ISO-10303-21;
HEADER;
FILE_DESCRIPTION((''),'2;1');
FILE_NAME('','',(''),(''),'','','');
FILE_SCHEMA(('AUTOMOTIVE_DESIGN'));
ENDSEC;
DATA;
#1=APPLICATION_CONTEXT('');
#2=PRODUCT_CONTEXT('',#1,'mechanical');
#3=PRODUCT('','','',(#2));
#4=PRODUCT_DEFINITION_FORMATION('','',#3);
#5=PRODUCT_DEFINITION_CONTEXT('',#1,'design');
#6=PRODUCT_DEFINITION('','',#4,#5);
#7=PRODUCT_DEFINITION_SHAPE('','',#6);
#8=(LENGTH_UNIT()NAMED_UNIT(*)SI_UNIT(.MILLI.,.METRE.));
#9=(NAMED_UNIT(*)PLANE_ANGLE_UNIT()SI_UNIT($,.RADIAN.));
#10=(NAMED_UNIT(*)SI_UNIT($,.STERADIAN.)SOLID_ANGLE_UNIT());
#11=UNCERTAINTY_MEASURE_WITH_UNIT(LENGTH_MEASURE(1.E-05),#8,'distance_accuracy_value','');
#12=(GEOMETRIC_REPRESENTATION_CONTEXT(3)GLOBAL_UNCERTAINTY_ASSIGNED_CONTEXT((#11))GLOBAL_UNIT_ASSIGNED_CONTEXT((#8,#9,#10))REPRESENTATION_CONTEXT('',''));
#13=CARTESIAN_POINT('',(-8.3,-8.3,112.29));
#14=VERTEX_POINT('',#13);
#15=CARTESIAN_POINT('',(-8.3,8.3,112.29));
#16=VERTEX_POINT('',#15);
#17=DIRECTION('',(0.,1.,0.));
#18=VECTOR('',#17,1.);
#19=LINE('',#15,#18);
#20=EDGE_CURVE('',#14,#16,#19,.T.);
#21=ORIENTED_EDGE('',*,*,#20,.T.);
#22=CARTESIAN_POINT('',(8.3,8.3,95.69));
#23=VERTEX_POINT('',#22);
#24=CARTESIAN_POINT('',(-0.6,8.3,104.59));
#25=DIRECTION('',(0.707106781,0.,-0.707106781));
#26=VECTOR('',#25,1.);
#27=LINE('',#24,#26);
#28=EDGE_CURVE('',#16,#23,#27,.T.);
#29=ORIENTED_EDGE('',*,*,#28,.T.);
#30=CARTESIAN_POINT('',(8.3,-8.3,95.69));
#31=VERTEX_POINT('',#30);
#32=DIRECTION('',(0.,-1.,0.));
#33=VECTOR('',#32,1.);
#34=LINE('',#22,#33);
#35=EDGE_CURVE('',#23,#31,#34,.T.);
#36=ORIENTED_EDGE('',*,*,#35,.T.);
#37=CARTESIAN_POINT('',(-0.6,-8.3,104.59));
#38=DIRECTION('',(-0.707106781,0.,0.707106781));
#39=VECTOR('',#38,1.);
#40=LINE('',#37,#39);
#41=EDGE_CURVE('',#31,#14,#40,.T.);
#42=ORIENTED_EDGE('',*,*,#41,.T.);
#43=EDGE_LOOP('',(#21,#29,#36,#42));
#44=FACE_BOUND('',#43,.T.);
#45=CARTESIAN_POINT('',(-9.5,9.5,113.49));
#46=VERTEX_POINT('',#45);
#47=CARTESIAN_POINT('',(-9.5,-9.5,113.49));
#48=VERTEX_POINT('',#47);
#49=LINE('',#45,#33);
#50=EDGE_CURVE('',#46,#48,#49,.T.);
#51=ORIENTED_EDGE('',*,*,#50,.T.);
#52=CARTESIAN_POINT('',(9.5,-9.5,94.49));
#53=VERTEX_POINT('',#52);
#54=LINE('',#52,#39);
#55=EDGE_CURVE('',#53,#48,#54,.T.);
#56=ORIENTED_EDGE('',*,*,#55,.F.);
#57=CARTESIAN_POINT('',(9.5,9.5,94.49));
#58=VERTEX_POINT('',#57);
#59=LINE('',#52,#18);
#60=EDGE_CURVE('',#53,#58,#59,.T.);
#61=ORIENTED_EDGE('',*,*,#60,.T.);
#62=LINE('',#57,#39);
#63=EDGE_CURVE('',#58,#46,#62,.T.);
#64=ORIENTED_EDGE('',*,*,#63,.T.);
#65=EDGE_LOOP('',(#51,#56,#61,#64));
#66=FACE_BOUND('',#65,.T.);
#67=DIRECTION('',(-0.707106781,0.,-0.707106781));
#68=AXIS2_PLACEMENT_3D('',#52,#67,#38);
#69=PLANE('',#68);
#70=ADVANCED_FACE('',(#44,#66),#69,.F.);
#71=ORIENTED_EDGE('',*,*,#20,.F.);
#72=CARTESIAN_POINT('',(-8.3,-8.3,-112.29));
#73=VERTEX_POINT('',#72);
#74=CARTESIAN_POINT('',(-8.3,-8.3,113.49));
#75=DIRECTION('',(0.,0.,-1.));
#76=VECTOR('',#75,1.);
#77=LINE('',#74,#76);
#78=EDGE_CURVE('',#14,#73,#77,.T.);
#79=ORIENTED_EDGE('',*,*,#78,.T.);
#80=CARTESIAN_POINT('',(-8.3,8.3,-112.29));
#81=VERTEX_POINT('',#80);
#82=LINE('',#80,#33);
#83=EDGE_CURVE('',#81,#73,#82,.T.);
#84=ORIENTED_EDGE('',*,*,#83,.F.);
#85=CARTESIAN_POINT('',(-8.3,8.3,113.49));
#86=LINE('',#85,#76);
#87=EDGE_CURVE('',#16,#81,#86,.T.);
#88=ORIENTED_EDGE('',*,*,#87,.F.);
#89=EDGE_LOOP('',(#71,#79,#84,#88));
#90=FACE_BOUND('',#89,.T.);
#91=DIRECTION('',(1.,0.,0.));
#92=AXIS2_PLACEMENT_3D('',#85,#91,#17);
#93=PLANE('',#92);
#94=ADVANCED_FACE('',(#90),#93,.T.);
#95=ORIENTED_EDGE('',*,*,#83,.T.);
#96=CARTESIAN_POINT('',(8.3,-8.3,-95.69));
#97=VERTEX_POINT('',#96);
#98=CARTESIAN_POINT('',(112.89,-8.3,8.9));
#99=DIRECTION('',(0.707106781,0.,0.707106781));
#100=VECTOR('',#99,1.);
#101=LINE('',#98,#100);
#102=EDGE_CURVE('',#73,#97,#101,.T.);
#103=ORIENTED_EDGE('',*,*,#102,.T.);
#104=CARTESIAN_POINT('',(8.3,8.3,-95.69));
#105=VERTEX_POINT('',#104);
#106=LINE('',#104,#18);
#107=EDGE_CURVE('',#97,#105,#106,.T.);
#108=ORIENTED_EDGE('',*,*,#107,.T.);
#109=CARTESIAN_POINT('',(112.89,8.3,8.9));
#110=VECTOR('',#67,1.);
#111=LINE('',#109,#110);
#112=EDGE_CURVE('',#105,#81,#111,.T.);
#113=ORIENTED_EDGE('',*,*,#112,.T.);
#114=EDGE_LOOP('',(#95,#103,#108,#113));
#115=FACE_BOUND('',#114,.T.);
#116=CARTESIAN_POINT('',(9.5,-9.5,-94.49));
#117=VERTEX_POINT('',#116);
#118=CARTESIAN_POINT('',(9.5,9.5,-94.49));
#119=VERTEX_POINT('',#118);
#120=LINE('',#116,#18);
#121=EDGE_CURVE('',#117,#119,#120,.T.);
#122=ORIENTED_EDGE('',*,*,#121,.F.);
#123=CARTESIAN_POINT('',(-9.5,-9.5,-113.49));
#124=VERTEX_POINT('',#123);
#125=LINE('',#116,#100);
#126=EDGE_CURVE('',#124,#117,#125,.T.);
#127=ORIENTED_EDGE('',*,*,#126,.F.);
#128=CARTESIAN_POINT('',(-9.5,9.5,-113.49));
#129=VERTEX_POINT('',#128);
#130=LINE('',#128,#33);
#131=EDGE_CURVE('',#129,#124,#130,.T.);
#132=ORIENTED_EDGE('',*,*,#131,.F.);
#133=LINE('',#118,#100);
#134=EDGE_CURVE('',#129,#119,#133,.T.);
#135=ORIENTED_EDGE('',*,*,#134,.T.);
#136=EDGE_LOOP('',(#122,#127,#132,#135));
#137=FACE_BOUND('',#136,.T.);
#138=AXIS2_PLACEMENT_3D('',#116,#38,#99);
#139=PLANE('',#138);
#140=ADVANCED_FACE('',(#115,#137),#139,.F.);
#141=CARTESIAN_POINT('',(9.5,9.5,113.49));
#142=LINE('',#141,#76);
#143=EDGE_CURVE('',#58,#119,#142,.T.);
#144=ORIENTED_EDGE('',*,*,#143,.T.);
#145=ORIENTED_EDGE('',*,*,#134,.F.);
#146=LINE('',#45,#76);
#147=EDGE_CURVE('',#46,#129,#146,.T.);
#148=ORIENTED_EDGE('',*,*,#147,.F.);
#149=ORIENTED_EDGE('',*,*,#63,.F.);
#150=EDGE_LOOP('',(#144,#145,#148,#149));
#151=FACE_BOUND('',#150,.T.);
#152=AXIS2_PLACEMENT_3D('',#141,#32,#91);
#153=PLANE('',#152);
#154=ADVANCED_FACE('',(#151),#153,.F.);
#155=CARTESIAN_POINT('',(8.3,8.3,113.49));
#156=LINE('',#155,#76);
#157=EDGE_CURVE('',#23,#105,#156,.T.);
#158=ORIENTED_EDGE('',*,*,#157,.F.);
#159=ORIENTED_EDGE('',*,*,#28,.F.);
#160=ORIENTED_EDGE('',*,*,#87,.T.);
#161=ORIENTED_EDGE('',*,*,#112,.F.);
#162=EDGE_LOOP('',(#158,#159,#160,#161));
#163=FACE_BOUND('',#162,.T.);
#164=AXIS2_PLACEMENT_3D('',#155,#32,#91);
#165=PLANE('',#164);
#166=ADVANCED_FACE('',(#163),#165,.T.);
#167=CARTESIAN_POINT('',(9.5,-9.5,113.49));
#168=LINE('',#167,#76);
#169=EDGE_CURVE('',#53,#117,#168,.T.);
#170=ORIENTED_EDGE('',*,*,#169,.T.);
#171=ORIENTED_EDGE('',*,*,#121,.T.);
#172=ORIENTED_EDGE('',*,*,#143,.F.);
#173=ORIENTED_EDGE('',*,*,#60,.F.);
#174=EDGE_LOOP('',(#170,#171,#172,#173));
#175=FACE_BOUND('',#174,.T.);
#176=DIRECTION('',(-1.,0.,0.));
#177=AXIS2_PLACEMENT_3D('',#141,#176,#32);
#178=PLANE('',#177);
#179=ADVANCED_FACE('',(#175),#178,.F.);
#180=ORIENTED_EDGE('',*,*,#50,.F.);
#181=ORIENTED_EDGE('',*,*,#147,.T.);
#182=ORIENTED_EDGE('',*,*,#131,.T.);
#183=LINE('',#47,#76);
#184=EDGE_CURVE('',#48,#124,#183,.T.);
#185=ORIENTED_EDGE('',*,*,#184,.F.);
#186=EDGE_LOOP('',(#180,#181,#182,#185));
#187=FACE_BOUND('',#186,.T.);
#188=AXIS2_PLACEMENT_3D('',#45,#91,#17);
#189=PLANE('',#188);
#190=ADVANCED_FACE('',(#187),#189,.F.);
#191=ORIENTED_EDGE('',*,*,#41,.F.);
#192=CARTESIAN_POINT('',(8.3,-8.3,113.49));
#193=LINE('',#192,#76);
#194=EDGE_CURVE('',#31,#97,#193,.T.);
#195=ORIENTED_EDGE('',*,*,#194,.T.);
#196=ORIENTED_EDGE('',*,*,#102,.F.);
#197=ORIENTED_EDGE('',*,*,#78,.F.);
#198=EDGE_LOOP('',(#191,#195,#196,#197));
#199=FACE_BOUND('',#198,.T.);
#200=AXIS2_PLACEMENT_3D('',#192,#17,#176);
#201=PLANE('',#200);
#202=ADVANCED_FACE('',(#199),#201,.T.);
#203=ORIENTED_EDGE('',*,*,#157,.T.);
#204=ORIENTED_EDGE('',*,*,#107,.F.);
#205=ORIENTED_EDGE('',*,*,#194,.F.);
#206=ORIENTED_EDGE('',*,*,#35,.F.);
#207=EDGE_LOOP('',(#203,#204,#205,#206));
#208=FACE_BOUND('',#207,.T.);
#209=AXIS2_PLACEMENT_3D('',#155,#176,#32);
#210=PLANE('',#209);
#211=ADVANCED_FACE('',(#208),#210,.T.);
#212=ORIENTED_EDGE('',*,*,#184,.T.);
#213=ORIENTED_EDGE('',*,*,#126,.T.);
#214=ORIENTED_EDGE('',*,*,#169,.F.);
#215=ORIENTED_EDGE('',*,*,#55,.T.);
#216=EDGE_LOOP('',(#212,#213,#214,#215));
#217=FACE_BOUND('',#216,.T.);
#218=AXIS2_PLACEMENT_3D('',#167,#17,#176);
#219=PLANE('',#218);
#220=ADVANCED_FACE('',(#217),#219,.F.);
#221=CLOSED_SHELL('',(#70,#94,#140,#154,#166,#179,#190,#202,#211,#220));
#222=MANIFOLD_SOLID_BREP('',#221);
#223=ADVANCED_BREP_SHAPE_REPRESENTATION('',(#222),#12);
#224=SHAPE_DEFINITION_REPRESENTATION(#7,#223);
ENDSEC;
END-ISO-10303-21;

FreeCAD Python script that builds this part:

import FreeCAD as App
import Part
import Sketcher
from FreeCAD import Vector


def add_polygon(sketch, points):
    """Adds a closed chain of lines whose ends are joined by coincident constraints."""
    first, n = sketch.GeometryCount, len(points)
    for a, b in zip(points, points[1:] + points[:1]):
        sketch.addGeometry(Part.LineSegment(App.Vector(*a, 0), App.Vector(*b, 0)), False)
    for i in range(n):
        sketch.addConstraint(Sketcher.Constraint("Coincident", first + i, 2, first + (i + 1) % n, 1))

doc = App.newDocument("Part")
body = doc.addObject("PartDesign::Body", "Body")

# Sketch on XY plane
sketch1 = doc.addObject("Sketcher::SketchObject", "Sketch")
body.addObject(sketch1)
sketch1.AttachmentSupport = (doc.XY_Plane, [""])
sketch1.MapMode = "FlatFace"
add_polygon(sketch1, [(-10, 10), (-10, -10), (10, -10), (10, 10)])  # lines 0-3
add_polygon(sketch1, [(8, -8), (-8, -8), (-8, 8), (8, 8)])  # lines 4-7
sketch1.addConstraint([
    Sketcher.Constraint("Vertical", 0),
    Sketcher.Constraint("Horizontal", 1),
    Sketcher.Constraint("Vertical", 2),
    Sketcher.Constraint("Horizontal", 3),
    Sketcher.Constraint("Horizontal", 4),
    Sketcher.Constraint("Vertical", 5),
    Sketcher.Constraint("Horizontal", 6),
    Sketcher.Constraint("Vertical", 7),
    Sketcher.Constraint("Symmetric", 0, 2, 2, 2, -1, 1),
    Sketcher.Constraint("Symmetric", 4, 2, 6, 2, -1, 1),
    Sketcher.Constraint("Equal", 3, 0),
    Sketcher.Constraint("Equal", 6, 5),
    Sketcher.Constraint("DistanceX", 1, 1, 1, 2, 19.0),
    Sketcher.Constraint("DistanceX", 4, 2, 4, 1, 16.6),
])
pad1 = doc.addObject("PartDesign::Pad", "Pad")
body.addObject(pad1)
pad1.Profile = sketch1
pad1.Length = 226.98
pad1.Midplane = True

# Sketch on XZ plane
sketch2 = doc.addObject("Sketcher::SketchObject", "Sketch001")
body.addObject(sketch2)
sketch2.AttachmentSupport = (doc.XZ_Plane, [""])
sketch2.MapMode = "FlatFace"
sketch2.AttachmentOffset = App.Placement(Vector(0, 0, -9.5), App.Rotation())
add_polygon(sketch2, [(-10, 113), (10, 113), (10, 94)])  # lines 0-2
add_polygon(sketch2, [(10, -113), (-10, -113), (10, -94)])  # lines 3-5
sketch2.addConstraint([
    Sketcher.Constraint("Horizontal", 0),
    Sketcher.Constraint("Vertical", 1),
    Sketcher.Constraint("Horizontal", 3),
    Sketcher.Constraint("Vertical", 5),
    Sketcher.Constraint("Symmetric", 0, 2, 3, 2, -1, 1),
    Sketcher.Constraint("Symmetric", 1, 2, 4, 2, -1),
    Sketcher.Constraint("Perpendicular", 2, 4),
    Sketcher.Constraint("Vertical", 2, 2, 3, 2),
    Sketcher.Constraint("DistanceX", 0, 1, 0, 2, 19.0),
    Sketcher.Constraint("DistanceY", -1, 1, 0, 2, 113.49),
])
pocket1 = doc.addObject("PartDesign::Pocket", "Pocket")
body.addObject(pocket1)
pocket1.Profile = sketch2
pocket1.Type = "ThroughAll"
pocket1.Reversed = True

doc.recompute()
